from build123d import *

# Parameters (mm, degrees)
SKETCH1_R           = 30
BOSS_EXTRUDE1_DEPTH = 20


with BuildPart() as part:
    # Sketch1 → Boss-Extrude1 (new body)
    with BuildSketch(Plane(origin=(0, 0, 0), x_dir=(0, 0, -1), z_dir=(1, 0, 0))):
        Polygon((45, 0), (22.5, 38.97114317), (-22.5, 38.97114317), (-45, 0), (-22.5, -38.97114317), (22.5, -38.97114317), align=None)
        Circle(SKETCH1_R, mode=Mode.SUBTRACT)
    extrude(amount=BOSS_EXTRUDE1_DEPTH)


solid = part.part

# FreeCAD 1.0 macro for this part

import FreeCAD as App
import Part
import Sketcher
from FreeCAD import Vector
Q = App.Units.Quantity


def add_polygon(sketch, points):
    """Adds a closed chain of lines whose ends are joined by coincident constraints."""
    first, n = sketch.GeometryCount, len(points)
    for a, b in zip(points, points[1:] + points[:1]):
        sketch.addGeometry(Part.LineSegment(App.Vector(*a, 0), App.Vector(*b, 0)), False)
    for i in range(n):
        sketch.addConstraint(Sketcher.Constraint("Coincident", first + i, 2, first + (i + 1) % n, 1))

doc = App.newDocument("Part")
body = doc.addObject("PartDesign::Body", "Body")

# Sketch on YZ plane
sketch1 = body.newObject("Sketcher::SketchObject", "Sketch")
sketch1.AttachmentSupport = (doc.getObject("YZ_Plane"), [""])
sketch1.MapMode = "FlatFace"
add_polygon(sketch1, [(0, -45), (39, -22), (39, 22), (0, 45), (-39, 22), (-39, -22)])  # lines 0-5
sketch1.addGeometry(Part.Circle(Vector(0, 0, 0), Vector(0, 0, 1), 30), False)  # 6
sketch1.addConstraint(Sketcher.Constraint("Vertical", 1))
sketch1.addConstraint(Sketcher.Constraint("Vertical", 4))
sketch1.addConstraint(Sketcher.Constraint("Coincident", 6, 3, -1, 1))
sketch1.addConstraint(Sketcher.Constraint("Symmetric", 0, 2, 3, 2, -1, 1))
sketch1.addConstraint(Sketcher.Constraint("Symmetric", 2, 2, 5, 2, -1, 1))
sketch1.addConstraint(Sketcher.Constraint("PointOnObject", 2, 2, -2))
sketch1.addConstraint(Sketcher.Constraint("Parallel", 2, 5))
sketch1.addConstraint(Sketcher.Constraint("Horizontal", 1, 2, 3, 2))
sketch1.addConstraint(Sketcher.Constraint("Diameter", 6, 60.0))
sketch1.addConstraint(Sketcher.Constraint("DistanceY", 1, 1, 1, 2, 45.0))
sketch1.addConstraint(Sketcher.Constraint("Angle", 0, Q("30 deg")))
sketch1.addConstraint(Sketcher.Constraint("Distance", 0, 45.0))
pad1 = body.newObject("PartDesign::Pad", "Pad")
pad1.Profile = sketch1
pad1.Length = 20

doc.recompute()
